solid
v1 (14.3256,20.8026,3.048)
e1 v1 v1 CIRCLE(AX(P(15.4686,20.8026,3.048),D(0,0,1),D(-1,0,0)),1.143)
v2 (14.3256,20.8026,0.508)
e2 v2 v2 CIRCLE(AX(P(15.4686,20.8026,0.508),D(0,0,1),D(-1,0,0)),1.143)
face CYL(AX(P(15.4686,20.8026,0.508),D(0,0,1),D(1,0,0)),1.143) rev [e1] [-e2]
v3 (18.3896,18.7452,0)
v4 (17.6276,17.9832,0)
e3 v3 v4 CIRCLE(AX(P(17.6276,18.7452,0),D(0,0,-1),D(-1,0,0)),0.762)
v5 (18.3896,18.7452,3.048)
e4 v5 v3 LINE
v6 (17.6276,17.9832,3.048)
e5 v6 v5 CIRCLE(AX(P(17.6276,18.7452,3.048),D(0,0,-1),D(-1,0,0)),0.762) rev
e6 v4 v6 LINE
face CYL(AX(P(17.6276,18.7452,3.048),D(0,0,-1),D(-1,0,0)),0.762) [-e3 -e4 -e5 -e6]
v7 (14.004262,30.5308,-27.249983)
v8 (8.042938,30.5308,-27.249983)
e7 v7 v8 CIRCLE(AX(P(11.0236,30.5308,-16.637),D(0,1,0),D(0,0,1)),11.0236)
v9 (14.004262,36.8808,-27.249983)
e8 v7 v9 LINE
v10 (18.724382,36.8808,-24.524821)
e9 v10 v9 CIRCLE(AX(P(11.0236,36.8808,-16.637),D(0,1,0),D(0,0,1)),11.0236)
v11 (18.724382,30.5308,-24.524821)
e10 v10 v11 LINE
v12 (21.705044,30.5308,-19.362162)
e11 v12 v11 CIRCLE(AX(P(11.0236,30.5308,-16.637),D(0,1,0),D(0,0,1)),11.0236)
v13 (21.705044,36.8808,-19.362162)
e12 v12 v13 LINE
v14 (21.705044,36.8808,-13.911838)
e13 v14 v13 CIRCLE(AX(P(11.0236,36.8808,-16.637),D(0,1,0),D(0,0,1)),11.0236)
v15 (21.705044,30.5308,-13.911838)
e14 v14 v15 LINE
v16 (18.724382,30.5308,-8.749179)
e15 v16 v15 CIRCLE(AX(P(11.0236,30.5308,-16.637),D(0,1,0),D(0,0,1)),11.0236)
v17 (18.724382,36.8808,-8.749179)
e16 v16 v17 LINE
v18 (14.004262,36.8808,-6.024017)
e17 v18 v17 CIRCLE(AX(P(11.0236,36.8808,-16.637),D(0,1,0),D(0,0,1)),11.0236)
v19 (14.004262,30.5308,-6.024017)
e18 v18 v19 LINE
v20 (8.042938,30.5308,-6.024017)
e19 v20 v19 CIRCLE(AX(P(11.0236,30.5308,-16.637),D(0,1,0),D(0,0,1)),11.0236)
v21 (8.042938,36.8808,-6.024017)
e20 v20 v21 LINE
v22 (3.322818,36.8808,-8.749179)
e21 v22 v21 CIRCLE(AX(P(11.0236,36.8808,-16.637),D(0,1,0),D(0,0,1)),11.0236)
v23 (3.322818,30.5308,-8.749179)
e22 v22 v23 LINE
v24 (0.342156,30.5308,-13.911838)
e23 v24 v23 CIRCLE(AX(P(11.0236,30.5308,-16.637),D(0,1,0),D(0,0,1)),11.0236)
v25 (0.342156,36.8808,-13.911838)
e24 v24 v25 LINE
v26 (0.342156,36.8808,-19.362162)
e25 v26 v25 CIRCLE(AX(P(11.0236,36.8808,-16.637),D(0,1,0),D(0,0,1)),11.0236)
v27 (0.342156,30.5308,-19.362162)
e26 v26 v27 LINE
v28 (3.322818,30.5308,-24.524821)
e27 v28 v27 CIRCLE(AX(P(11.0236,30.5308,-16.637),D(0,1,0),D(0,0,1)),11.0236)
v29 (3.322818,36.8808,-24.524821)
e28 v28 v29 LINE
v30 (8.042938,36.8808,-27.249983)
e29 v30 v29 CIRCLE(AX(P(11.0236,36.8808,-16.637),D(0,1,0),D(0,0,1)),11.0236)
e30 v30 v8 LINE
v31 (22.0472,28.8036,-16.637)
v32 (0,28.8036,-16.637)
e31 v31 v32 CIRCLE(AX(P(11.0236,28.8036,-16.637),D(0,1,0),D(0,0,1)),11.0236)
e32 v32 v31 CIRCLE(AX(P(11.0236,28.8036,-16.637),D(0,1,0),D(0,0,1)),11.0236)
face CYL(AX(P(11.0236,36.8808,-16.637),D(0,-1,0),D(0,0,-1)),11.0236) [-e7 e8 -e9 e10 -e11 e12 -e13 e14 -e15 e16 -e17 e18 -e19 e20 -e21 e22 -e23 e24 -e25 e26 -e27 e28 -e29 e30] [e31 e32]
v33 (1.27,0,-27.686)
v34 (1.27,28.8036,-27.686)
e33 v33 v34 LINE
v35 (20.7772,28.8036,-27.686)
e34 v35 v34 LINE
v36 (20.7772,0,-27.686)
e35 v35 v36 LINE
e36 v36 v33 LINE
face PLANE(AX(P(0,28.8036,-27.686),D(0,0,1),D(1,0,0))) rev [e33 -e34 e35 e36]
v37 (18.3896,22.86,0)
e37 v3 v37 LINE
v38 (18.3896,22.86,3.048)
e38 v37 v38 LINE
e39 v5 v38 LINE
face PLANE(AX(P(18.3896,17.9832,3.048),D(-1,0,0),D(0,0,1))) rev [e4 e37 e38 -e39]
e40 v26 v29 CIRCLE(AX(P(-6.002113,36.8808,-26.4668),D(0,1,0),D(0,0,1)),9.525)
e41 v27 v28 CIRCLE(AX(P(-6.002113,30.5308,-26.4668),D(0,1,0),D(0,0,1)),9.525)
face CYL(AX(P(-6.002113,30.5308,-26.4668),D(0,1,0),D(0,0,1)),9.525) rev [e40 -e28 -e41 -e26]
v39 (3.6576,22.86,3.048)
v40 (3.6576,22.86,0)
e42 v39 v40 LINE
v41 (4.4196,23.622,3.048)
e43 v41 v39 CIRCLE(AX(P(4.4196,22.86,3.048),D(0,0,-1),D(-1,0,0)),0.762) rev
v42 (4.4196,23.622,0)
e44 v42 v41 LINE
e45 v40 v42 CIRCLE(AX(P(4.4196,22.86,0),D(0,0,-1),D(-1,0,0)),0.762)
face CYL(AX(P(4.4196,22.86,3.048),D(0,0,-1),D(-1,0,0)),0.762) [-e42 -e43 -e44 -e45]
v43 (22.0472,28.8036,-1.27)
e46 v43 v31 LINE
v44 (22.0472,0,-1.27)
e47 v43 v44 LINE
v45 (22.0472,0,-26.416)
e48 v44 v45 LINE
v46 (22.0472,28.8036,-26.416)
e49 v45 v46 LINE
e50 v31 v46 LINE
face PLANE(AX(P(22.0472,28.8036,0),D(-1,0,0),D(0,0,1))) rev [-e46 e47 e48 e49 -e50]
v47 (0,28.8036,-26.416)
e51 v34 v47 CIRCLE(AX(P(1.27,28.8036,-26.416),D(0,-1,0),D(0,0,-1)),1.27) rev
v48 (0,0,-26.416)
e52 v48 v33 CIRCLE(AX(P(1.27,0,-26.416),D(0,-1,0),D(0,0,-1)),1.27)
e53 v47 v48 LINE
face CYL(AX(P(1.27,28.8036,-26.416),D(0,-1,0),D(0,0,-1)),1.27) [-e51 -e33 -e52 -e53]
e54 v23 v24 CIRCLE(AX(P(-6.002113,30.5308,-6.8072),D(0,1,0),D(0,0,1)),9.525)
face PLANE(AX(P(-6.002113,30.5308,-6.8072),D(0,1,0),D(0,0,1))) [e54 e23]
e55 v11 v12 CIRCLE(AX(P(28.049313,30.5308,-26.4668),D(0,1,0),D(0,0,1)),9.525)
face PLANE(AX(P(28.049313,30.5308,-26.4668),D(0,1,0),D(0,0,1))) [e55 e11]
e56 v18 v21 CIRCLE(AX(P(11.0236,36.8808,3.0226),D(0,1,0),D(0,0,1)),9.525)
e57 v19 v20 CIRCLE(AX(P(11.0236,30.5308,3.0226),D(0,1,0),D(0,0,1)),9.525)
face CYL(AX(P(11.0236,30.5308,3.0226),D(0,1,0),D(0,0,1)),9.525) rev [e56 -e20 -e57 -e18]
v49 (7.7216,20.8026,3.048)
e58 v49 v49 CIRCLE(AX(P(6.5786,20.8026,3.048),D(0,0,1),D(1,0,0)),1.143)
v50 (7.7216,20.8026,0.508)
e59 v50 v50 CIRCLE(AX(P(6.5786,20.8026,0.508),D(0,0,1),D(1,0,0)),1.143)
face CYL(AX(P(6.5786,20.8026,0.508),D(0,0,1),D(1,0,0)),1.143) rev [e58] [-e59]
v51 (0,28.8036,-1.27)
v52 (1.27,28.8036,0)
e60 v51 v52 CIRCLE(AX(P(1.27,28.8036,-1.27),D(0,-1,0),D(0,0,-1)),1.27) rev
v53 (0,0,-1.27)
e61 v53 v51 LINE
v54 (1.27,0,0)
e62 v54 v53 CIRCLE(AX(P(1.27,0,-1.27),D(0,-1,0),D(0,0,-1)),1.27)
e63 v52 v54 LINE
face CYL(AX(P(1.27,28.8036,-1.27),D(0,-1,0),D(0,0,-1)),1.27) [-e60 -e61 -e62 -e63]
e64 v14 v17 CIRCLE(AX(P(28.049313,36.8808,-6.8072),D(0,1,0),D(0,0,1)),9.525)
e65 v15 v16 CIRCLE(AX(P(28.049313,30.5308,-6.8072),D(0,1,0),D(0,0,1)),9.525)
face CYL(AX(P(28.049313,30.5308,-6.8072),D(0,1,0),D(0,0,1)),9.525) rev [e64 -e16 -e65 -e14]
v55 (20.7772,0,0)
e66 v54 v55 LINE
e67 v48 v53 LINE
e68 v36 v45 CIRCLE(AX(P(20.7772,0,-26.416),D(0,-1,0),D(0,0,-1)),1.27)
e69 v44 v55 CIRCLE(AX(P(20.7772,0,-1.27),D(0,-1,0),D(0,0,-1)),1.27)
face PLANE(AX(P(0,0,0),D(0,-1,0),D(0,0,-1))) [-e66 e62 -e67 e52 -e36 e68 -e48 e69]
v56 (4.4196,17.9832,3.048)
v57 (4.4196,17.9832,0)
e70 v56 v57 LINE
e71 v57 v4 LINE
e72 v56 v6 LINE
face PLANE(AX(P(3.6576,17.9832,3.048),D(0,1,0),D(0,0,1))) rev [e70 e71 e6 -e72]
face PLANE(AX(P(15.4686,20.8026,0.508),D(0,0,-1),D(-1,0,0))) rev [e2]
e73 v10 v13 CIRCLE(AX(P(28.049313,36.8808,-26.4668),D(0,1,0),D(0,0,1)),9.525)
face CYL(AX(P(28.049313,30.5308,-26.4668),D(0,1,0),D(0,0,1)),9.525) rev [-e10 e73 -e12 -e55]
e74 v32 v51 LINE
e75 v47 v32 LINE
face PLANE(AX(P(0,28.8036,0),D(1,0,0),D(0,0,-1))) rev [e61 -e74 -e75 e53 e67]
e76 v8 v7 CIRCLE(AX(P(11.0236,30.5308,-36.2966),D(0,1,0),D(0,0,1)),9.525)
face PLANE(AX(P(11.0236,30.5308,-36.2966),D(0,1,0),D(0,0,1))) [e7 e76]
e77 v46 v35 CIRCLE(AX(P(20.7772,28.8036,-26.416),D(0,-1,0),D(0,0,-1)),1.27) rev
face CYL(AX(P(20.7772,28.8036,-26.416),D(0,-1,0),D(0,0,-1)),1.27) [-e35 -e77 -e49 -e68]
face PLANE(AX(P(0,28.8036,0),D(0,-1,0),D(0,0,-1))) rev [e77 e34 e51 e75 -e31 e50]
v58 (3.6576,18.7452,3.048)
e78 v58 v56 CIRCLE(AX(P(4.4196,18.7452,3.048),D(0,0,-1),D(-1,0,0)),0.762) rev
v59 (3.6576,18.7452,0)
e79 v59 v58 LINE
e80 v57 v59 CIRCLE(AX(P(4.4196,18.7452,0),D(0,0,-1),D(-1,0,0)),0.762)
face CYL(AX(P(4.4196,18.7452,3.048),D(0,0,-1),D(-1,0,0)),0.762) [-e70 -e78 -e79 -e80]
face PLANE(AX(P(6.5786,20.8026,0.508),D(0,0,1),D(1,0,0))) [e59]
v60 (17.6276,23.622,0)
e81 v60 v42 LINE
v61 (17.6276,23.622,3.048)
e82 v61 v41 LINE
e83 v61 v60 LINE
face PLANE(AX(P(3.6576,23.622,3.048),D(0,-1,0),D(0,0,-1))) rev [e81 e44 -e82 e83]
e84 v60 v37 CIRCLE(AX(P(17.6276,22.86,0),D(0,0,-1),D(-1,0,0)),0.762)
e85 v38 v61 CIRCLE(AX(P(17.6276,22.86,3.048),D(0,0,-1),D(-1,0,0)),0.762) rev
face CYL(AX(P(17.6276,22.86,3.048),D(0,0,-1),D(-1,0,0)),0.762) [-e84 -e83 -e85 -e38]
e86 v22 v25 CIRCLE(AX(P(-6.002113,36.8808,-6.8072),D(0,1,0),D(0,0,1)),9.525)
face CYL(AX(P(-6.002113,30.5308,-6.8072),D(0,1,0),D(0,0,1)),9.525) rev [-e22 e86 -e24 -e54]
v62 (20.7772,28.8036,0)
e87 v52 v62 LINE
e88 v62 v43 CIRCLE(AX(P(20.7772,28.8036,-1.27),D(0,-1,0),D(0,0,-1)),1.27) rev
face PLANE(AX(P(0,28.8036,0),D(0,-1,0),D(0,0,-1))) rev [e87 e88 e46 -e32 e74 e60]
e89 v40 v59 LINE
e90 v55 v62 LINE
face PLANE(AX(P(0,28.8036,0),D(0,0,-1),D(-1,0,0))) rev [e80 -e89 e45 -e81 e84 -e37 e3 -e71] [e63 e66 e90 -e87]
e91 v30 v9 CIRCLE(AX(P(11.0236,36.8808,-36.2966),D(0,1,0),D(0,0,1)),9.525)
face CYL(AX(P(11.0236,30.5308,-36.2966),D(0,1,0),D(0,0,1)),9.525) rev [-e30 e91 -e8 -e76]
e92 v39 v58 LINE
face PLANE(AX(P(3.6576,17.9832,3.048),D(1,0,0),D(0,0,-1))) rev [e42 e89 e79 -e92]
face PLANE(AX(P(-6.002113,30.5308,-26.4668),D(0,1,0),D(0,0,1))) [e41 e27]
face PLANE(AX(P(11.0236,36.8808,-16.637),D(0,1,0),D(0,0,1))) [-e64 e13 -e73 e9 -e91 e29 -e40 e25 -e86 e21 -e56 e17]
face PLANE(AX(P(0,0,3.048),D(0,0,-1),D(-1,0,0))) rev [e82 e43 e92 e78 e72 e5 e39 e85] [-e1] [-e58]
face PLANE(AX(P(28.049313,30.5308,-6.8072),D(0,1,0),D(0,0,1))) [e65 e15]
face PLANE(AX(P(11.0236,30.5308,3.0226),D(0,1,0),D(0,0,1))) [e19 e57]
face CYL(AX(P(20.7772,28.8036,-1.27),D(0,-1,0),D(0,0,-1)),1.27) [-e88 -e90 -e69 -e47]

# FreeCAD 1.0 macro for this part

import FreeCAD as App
import Part
import Sketcher

V = App.Vector
Q = App.Units.Quantity


def edges_at(feature, points):
    """Names of the edges that pass closest to the given points."""
    edges = feature.Shape.Edges
    near = lambda p: min(range(len(edges)), key=lambda i: edges[i].distToShape(Part.Vertex(*p))[0])
    return sorted({f"Edge{near(p) + 1}" for p in points})

doc = App.newDocument("Part")
body = doc.addObject("PartDesign::Body", "Body")

sketch1 = body.newObject("Sketcher::SketchObject", "Sketch")
sketch1.AttachmentSupport = (doc.getObject("XZ_Plane"), [""])
sketch1.MapMode = "FlatFace"
sketch1.addGeometry(Part.LineSegment(V(0, -28, 0), V(0, 0, 0)), False)
sketch1.addGeometry(Part.LineSegment(V(0, 0, 0), V(22, 0, 0)), False)
sketch1.addGeometry(Part.LineSegment(V(22, 0, 0), V(22, -28, 0)), False)
sketch1.addGeometry(Part.LineSegment(V(22, -28, 0), V(0, -28, 0)), False)
sketch1.addConstraint(Sketcher.Constraint("Coincident", 0, 2, 1, 1))
sketch1.addConstraint(Sketcher.Constraint("Coincident", 1, 2, 2, 1))
sketch1.addConstraint(Sketcher.Constraint("Coincident", 2, 2, 3, 1))
sketch1.addConstraint(Sketcher.Constraint("Coincident", 3, 2, 0, 1))
sketch1.addConstraint(Sketcher.Constraint("Vertical", 0))
sketch1.addConstraint(Sketcher.Constraint("Horizontal", 1))
sketch1.addConstraint(Sketcher.Constraint("Vertical", 2))
sketch1.addConstraint(Sketcher.Constraint("Horizontal", 3))
sketch1.addConstraint(Sketcher.Constraint("Coincident", 0, 2, -1, 1))
sketch1.addConstraint(Sketcher.Constraint("DistanceY", 0, 1, 0, 2, Q("1.09 in")))
sketch1.addConstraint(Sketcher.Constraint("DistanceX", 1, 1, 1, 2, Q("0.868 in")))
pad1 = body.newObject("PartDesign::Pad", "Pad")
pad1.Profile = sketch1
pad1.Length = Q("1.134 in")
pad1.Reversed = True

sketch2 = body.newObject("Sketcher::SketchObject", "Sketch001")
sketch2.AttachmentSupport = (doc.getObject("XY_Plane"), [""])
sketch2.MapMode = "FlatFace"
sketch2.addGeometry(Part.LineSegment(V(4, 24, 0), V(4, 18, 0)), False)
sketch2.addGeometry(Part.LineSegment(V(4, 18, 0), V(18, 18, 0)), False)
sketch2.addGeometry(Part.LineSegment(V(18, 18, 0), V(18, 24, 0)), False)
sketch2.addGeometry(Part.LineSegment(V(18, 24, 0), V(4, 24, 0)), False)
sketch2.addConstraint(Sketcher.Constraint("Coincident", 0, 2, 1, 1))
sketch2.addConstraint(Sketcher.Constraint("Coincident", 1, 2, 2, 1))
sketch2.addConstraint(Sketcher.Constraint("Coincident", 2, 2, 3, 1))
sketch2.addConstraint(Sketcher.Constraint("Coincident", 3, 2, 0, 1))
sketch2.addConstraint(Sketcher.Constraint("Vertical", 0))
sketch2.addConstraint(Sketcher.Constraint("Horizontal", 1))
sketch2.addConstraint(Sketcher.Constraint("Vertical", 2))
sketch2.addConstraint(Sketcher.Constraint("Horizontal", 3))
sketch2.addConstraint(Sketcher.Constraint("DistanceX", 1, 1, 1, 2, Q("0.58 in")))
sketch2.addConstraint(Sketcher.Constraint("DistanceY", 0, 2, 0, 1, Q("0.222 in")))
sketch2.addConstraint(Sketcher.Constraint("DistanceY", -1, 1, 2, 2, Q("0.93 in")))
sketch2.addConstraint(Sketcher.Constraint("DistanceX", -1, 1, 0, 2, Q("0.144 in")))
pad2 = body.newObject("PartDesign::Pad", "Pad001")
pad2.Profile = sketch2
pad2.Length = Q("0.12 in")

sketch3 = body.newObject("Sketcher::SketchObject", "Sketch002")
sketch3.AttachmentSupport = (doc.getObject("XZ_Plane"), [""])
sketch3.MapMode = "FlatFace"
sketch3.AttachmentOffset = App.Placement(V(0, 0, -1.134 * 25.4), App.Rotation())
sketch3.addGeometry(Part.Circle(V(11, -17, 0), V(0, 0, 1), 11), False)
sketch3.addConstraint(Sketcher.Constraint("Diameter", 0, Q("0.868 in")))
sketch3.addConstraint(Sketcher.Constraint("DistanceX", -1, 1, 0, 3, Q("0.434 in")))
sketch3.addConstraint(Sketcher.Constraint("DistanceY", 0, 3, -1, 1, Q("0.655 in")))
pad3 = body.newObject("PartDesign::Pad", "Pad002")
pad3.Profile = sketch3
pad3.Length = Q("0.318 in")
pad3.Reversed = True

sketch4 = body.newObject("Sketcher::SketchObject", "Sketch003")
sketch4.AttachmentSupport = (doc.getObject("XZ_Plane"), [""])
sketch4.MapMode = "FlatFace"
sketch4.AttachmentOffset = App.Placement(V(0, 0, -1.452 * 25.4), App.Rotation())
sketch4.addGeometry(Part.Circle(V(11, -36, 0), V(0, 0, 1), 10), False)
sketch4.addGeometry(Part.Circle(V(28, -26, 0), V(0, 0, 1), 10), False)
sketch4.addGeometry(Part.Circle(V(28, -7, 0), V(0, 0, 1), 10), False)
sketch4.addGeometry(Part.Circle(V(11, 3, 0), V(0, 0, 1), 10), False)
sketch4.addGeometry(Part.Circle(V(-6, -7, 0), V(0, 0, 1), 10), False)
sketch4.addGeometry(Part.Circle(V(-6, -26, 0), V(0, 0, 1), 10), False)
sketch4.addConstraint(Sketcher.Constraint("Equal", 0, 1))
sketch4.addConstraint(Sketcher.Constraint("Equal", 1, 2))
sketch4.addConstraint(Sketcher.Constraint("Equal", 2, 3))
sketch4.addConstraint(Sketcher.Constraint("Equal", 3, 4))
sketch4.addConstraint(Sketcher.Constraint("Equal", 4, 5))
sketch4.addConstraint(Sketcher.Constraint("Horizontal", 2, 3, 4, 3))
sketch4.addConstraint(Sketcher.Constraint("Horizontal", 1, 3, 5, 3))
sketch4.addConstraint(Sketcher.Constraint("Vertical", 1, 3, 2, 3))
sketch4.addConstraint(Sketcher.Constraint("Vertical", 0, 3, 3, 3))
sketch4.addConstraint(Sketcher.Constraint("Vertical", 4, 3, 5, 3))
sketch4.addConstraint(Sketcher.Constraint("Diameter", 0, Q("0.75 in")))
sketch4.addConstraint(Sketcher.Constraint("DistanceX", -1, 1, 0, 3, Q("0.434 in")))
sketch4.addConstraint(Sketcher.Constraint("DistanceY", 0, 3, -1, 1, Q("1.429 in")))
sketch4.addConstraint(Sketcher.Constraint("DistanceY", 1, 3, -1, 1, Q("1.042 in")))
sketch4.addConstraint(Sketcher.Constraint("DistanceY", 2, 3, -1, 1, Q("0.268 in")))
sketch4.addConstraint(Sketcher.Constraint("DistanceY", -1, 1, 3, 3, Q("0.119 in")))
sketch4.addConstraint(Sketcher.Constraint("DistanceX", -1, 1, 1, 3, 28.049313))
sketch4.addConstraint(Sketcher.Constraint("DistanceX", 4, 3, -1, 1, 6.002113))
pocket1 = body.newObject("PartDesign::Pocket", "Pocket")
pocket1.Profile = sketch4
pocket1.Length = Q("0.25 in")
pocket1.Reversed = True
doc.recompute()

fillet = body.newObject("PartDesign::Fillet", "Fillet")
fillet.Base = (pocket1, edges_at(pocket1, [
    (0, 14.402, -27.686),
    (22.047, 14.402, -27.686),
    (22.047, 14.402, 0),
    (0, 14.402, 0),
]))
fillet.Radius = Q("0.05 in")
doc.recompute()

fillet2 = body.newObject("PartDesign::Fillet", "Fillet001")
fillet2.Base = (fillet, edges_at(fillet, [
    (18.39, 17.983, 1.524),
    (18.39, 23.622, 1.524),
    (3.658, 23.622, 1.524),
    (3.658, 17.983, 1.524),
]))
fillet2.Radius = Q("0.03 in")

sketch5 = body.newObject("Sketcher::SketchObject", "Sketch004")
sketch5.AttachmentSupport = (doc.getObject("XY_Plane"), [""])
sketch5.MapMode = "FlatFace"
sketch5.AttachmentOffset = App.Placement(V(0, 0, 0.12 * 25.4), App.Rotation())
sketch5.addGeometry(Part.Circle(V(6.6, 20.8, 0), V(0, 0, 1), 1.1), False)
sketch5.addGeometry(Part.Circle(V(15.5, 20.8, 0), V(0, 0, 1), 1.1), False)
sketch5.addConstraint(Sketcher.Constraint("Equal", 0, 1))
sketch5.addConstraint(Sketcher.Constraint("Horizontal", 0, 3, 1, 3))
sketch5.addConstraint(Sketcher.Constraint("Diameter", 0, Q("0.09 in")))
sketch5.addConstraint(Sketcher.Constraint("DistanceX", 0, 3, 1, 3, Q("0.35 in")))
sketch5.addConstraint(Sketcher.Constraint("DistanceX", -1, 1, 0, 3, Q("0.259 in")))
sketch5.addConstraint(Sketcher.Constraint("DistanceY", -1, 1, 0, 3, Q("0.819 in")))
pocket2 = body.newObject("PartDesign::Pocket", "Pocket001")
pocket2.Profile = sketch5
pocket2.Length = Q("0.1 in")

doc.recompute()
